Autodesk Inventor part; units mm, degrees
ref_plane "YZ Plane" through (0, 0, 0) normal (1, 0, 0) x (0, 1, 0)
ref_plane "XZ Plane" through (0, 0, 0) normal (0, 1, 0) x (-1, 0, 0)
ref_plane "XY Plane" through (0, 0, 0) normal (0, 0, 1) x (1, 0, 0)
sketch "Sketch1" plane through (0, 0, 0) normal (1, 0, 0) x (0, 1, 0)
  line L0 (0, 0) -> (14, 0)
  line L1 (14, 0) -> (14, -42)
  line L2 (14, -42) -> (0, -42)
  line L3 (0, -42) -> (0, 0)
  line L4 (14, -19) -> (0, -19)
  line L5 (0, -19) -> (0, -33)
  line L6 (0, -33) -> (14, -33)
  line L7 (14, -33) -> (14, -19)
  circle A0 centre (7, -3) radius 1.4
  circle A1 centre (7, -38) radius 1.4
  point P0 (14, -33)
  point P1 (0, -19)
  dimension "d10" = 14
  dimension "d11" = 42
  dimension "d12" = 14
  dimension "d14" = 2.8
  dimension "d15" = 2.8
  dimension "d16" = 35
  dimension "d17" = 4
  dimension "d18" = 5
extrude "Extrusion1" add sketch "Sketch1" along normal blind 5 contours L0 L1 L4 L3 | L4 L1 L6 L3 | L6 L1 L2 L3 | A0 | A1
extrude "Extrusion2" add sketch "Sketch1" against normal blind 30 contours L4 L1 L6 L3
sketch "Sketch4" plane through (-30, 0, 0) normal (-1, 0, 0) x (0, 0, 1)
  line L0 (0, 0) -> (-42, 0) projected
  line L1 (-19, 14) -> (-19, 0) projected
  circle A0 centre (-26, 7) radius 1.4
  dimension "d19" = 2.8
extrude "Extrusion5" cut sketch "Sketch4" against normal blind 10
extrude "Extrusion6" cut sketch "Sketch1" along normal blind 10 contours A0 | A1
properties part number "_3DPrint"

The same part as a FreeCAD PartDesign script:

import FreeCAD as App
import Part
import Sketcher

doc = App.newDocument("Part")
params = doc.addObject("Spreadsheet::Sheet", "Params")
for row, (alias, value) in enumerate([
    ("sketch1_width", "14 mm"),
    ("sketch1_height", "42 mm"),
    ("pad1_length", "5 mm"),
    ("sketch2_width", "14 mm"),
    ("pad2_length", "30 mm"),
    ("sketch3_diameter", "2.8 mm"),
    ("pocket1_length", "10 mm"),
    ("sketch4_diameter", "2.8 mm"),
    ("pocket2_length", "10 mm"),
], start=1):
    params.set(f"A{row}", alias)
    params.set(f"B{row}", "=" + value)
    params.setAlias(f"B{row}", alias)

body = doc.addObject("PartDesign::Body", "Body")

sketch1 = body.newObject("Sketcher::SketchObject", "Sketch")
sketch1.AttachmentSupport = (doc.getObject("YZ_Plane"), [""])
sketch1.MapMode = "FlatFace"
sketch1.addGeometry([
    Part.LineSegment(App.Vector(14, 0, 0), App.Vector(0, 0, 0)),
    Part.LineSegment(App.Vector(0, 0, 0), App.Vector(0, -42, 0)),
    Part.LineSegment(App.Vector(0, -42, 0), App.Vector(14, -42, 0)),
    Part.LineSegment(App.Vector(14, -42, 0), App.Vector(14, 0, 0)),
], False)
sketch1.addConstraint([
    Sketcher.Constraint("Coincident", 0, 2, 1, 1),
    Sketcher.Constraint("Coincident", 1, 2, 2, 1),
    Sketcher.Constraint("Coincident", 2, 2, 3, 1),
    Sketcher.Constraint("Coincident", 3, 2, 0, 1),
    Sketcher.Constraint("Horizontal", 0),
    Sketcher.Constraint("Vertical", 1),
    Sketcher.Constraint("Horizontal", 2),
    Sketcher.Constraint("Vertical", 3),
    Sketcher.Constraint("Coincident", 0, 2, -1, 1),
    Sketcher.Constraint("DistanceX", 0, 2, 0, 1, 14.0),
    Sketcher.Constraint("DistanceY", 1, 2, 1, 1, 42.0),
])
sketch1.setExpression("Constraints[9]", "Params.sketch1_width")
sketch1.setExpression("Constraints[10]", "Params.sketch1_height")
pad1 = body.newObject("PartDesign::Pad", "Pad")
pad1.Profile = sketch1
pad1.setExpression("Length", "Params.pad1_length")

sketch2 = body.newObject("Sketcher::SketchObject", "Sketch001")
sketch2.AttachmentSupport = (doc.getObject("YZ_Plane"), [""])
sketch2.MapMode = "FlatFace"
sketch2.addGeometry([
    Part.LineSegment(App.Vector(14, -19, 0), App.Vector(0, -19, 0)),
    Part.LineSegment(App.Vector(0, -19, 0), App.Vector(0, -33, 0)),
    Part.LineSegment(App.Vector(0, -33, 0), App.Vector(14, -33, 0)),
    Part.LineSegment(App.Vector(14, -33, 0), App.Vector(14, -19, 0)),
], False)
sketch2.addConstraint([
    Sketcher.Constraint("Coincident", 0, 2, 1, 1),
    Sketcher.Constraint("Coincident", 1, 2, 2, 1),
    Sketcher.Constraint("Coincident", 2, 2, 3, 1),
    Sketcher.Constraint("Coincident", 3, 2, 0, 1),
    Sketcher.Constraint("Horizontal", 0),
    Sketcher.Constraint("Vertical", 1),
    Sketcher.Constraint("Horizontal", 2),
    Sketcher.Constraint("Vertical", 3),
    Sketcher.Constraint("PointOnObject", 0, 2, -2),
    Sketcher.Constraint("Equal", 2, 1),
    Sketcher.Constraint("DistanceX", 0, 2, 0, 1, 14.0),
    Sketcher.Constraint("DistanceY", 0, 2, -1, 1, 19.0),
])
sketch2.setExpression("Constraints[10]", "Params.sketch2_width")
pad2 = body.newObject("PartDesign::Pad", "Pad001")
pad2.Profile = sketch2
pad2.setExpression("Length", "Params.pad2_length")
pad2.Reversed = True

sketch3 = body.newObject("Sketcher::SketchObject", "Sketch002")
sketch3.AttachmentSupport = (doc.getObject("YZ_Plane"), [""])
sketch3.MapMode = "FlatFace"
sketch3.AttachmentOffset = App.Placement(App.Vector(0, 0, -30), App.Rotation())
sketch3.addGeometry(Part.Circle(App.Vector(7, -26, 0), App.Vector(0, 0, 1), 1.4), False)
sketch3.addConstraint([
    Sketcher.Constraint("Diameter", 0, 2.8),
    Sketcher.Constraint("DistanceX", -1, 1, 0, 3, 7.0),
    Sketcher.Constraint("DistanceY", 0, 3, -1, 1, 26.0),
])
sketch3.setExpression("Constraints[0]", "Params.sketch3_diameter")
pocket1 = body.newObject("PartDesign::Pocket", "Pocket")
pocket1.Profile = sketch3
pocket1.setExpression("Length", "Params.pocket1_length")
pocket1.Reversed = True

sketch4 = body.newObject("Sketcher::SketchObject", "Sketch003")
sketch4.AttachmentSupport = (doc.getObject("YZ_Plane"), [""])
sketch4.MapMode = "FlatFace"
sketch4.addGeometry([
    Part.Circle(App.Vector(7, -3, 0), App.Vector(0, 0, 1), 1.4),
    Part.Circle(App.Vector(7, -38, 0), App.Vector(0, 0, 1), 1.4),
], False)
sketch4.addConstraint([
    Sketcher.Constraint("Equal", 0, 1),
    Sketcher.Constraint("Vertical", 0, 3, 1, 3),
    Sketcher.Constraint("Diameter", 0, 2.8),
    Sketcher.Constraint("DistanceY", 1, 3, 0, 3, 35.0),
    Sketcher.Constraint("DistanceX", -1, 1, 0, 3, 7.0),
    Sketcher.Constraint("DistanceY", 0, 3, -1, 1, 3.0),
])
sketch4.setExpression("Constraints[2]", "Params.sketch4_diameter")
pocket2 = body.newObject("PartDesign::Pocket", "Pocket001")
pocket2.Profile = sketch4
pocket2.setExpression("Length", "Params.pocket2_length")
pocket2.Reversed = True

doc.recompute()
